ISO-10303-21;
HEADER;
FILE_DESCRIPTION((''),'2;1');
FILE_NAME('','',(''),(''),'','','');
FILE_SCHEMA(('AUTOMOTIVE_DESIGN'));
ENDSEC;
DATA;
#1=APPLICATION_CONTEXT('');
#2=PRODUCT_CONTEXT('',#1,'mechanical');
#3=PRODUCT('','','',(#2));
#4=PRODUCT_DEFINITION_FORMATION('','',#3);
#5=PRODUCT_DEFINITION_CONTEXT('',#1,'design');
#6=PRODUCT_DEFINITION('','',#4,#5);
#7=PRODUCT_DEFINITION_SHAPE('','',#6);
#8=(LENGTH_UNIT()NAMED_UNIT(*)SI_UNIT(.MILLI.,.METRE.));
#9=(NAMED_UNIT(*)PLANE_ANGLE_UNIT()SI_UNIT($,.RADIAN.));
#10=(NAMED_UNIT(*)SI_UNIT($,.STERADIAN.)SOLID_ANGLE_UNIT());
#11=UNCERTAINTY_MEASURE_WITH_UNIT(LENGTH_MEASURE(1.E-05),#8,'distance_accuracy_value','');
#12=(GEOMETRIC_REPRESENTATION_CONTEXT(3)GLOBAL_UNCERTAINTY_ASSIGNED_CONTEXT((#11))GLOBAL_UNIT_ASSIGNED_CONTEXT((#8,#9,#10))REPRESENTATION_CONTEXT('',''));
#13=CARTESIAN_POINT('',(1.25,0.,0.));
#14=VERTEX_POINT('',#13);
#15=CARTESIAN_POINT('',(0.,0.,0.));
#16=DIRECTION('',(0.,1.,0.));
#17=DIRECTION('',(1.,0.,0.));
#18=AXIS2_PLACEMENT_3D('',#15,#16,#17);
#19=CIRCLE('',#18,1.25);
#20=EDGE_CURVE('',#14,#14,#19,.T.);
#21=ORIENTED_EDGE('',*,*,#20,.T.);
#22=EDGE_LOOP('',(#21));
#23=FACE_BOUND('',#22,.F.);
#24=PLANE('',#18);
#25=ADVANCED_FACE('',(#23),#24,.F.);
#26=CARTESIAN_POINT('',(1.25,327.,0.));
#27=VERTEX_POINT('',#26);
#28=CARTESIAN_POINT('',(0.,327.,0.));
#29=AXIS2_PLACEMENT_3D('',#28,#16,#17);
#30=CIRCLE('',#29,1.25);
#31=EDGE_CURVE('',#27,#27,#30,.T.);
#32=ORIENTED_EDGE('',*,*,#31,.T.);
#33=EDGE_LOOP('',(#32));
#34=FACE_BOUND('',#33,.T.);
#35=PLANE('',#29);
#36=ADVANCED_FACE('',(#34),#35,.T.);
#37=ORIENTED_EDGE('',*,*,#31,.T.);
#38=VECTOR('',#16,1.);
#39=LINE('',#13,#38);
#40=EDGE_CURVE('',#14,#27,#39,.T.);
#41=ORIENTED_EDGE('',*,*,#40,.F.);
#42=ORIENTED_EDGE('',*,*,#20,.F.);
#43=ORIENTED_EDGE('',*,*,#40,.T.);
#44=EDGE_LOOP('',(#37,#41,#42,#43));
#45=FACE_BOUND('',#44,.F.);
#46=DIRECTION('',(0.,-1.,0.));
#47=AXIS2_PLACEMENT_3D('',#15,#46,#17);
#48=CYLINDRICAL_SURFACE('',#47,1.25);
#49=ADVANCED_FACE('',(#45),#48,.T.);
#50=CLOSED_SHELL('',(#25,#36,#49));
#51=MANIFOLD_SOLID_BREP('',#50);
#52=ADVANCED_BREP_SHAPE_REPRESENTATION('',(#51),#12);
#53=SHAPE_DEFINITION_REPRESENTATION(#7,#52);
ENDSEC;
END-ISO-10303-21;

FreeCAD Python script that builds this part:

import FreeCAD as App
import Part
import Sketcher
Q = App.Units.Quantity

doc = App.newDocument("Part")
body = doc.addObject("PartDesign::Body", "Body")

# Sketch on XZ plane
sketch1 = body.newObject("Sketcher::SketchObject", "Sketch")
sketch1.AttachmentSupport = (doc.getObject("XZ_Plane"), [""])
sketch1.MapMode = "FlatFace"
sketch1.addGeometry(Part.Circle(App.Vector(0, 0, 0), App.Vector(0, 0, 1), 1.2), False)
sketch1.addConstraint(Sketcher.Constraint("Coincident", 0, 3, -1, 1))
sketch1.addConstraint(Sketcher.Constraint("Diameter", 0, Q("2.5 mm")))
pad1 = body.newObject("PartDesign::Pad", "Pad")
pad1.Profile = sketch1
pad1.Length = 327
pad1.Reversed = True

doc.recompute()
